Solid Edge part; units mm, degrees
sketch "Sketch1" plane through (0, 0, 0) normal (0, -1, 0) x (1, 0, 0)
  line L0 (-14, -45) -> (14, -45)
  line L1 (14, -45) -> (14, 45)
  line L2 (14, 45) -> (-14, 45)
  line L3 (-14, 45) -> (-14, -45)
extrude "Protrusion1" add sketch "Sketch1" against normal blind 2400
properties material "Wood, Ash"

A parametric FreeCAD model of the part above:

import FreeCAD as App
import Part
import Sketcher

V = App.Vector
Q = App.Units.Quantity

doc = App.newDocument("Part")
body = doc.addObject("PartDesign::Body", "Body")

# Sketch on XZ plane
sketch1 = body.newObject("Sketcher::SketchObject", "Sketch")
sketch1.AttachmentSupport = (doc.getObject("XZ_Plane"), [""])
sketch1.MapMode = "FlatFace"
sketch1.addGeometry(Part.LineSegment(V(-14, 45, 0), V(-14, -45, 0)), False)
sketch1.addGeometry(Part.LineSegment(V(-14, -45, 0), V(14, -45, 0)), False)
sketch1.addGeometry(Part.LineSegment(V(14, -45, 0), V(14, 45, 0)), False)
sketch1.addGeometry(Part.LineSegment(V(14, 45, 0), V(-14, 45, 0)), False)
sketch1.addConstraint(Sketcher.Constraint("Coincident", 0, 2, 1, 1))
sketch1.addConstraint(Sketcher.Constraint("Coincident", 1, 2, 2, 1))
sketch1.addConstraint(Sketcher.Constraint("Coincident", 2, 2, 3, 1))
sketch1.addConstraint(Sketcher.Constraint("Coincident", 3, 2, 0, 1))
sketch1.addConstraint(Sketcher.Constraint("Vertical", 0))
sketch1.addConstraint(Sketcher.Constraint("Horizontal", 1))
sketch1.addConstraint(Sketcher.Constraint("Vertical", 2))
sketch1.addConstraint(Sketcher.Constraint("Horizontal", 3))
sketch1.addConstraint(Sketcher.Constraint("Symmetric", 0, 2, 2, 2, -1, 1))
sketch1.addConstraint(Sketcher.Constraint("DistanceX", 1, 1, 1, 2, Q("28 mm")))
sketch1.addConstraint(Sketcher.Constraint("DistanceY", 0, 2, 0, 1, Q("90 mm")))
pad1 = body.newObject("PartDesign::Pad", "Pad")
pad1.Profile = sketch1
pad1.Length = 2400
pad1.Reversed = True

doc.recompute()
